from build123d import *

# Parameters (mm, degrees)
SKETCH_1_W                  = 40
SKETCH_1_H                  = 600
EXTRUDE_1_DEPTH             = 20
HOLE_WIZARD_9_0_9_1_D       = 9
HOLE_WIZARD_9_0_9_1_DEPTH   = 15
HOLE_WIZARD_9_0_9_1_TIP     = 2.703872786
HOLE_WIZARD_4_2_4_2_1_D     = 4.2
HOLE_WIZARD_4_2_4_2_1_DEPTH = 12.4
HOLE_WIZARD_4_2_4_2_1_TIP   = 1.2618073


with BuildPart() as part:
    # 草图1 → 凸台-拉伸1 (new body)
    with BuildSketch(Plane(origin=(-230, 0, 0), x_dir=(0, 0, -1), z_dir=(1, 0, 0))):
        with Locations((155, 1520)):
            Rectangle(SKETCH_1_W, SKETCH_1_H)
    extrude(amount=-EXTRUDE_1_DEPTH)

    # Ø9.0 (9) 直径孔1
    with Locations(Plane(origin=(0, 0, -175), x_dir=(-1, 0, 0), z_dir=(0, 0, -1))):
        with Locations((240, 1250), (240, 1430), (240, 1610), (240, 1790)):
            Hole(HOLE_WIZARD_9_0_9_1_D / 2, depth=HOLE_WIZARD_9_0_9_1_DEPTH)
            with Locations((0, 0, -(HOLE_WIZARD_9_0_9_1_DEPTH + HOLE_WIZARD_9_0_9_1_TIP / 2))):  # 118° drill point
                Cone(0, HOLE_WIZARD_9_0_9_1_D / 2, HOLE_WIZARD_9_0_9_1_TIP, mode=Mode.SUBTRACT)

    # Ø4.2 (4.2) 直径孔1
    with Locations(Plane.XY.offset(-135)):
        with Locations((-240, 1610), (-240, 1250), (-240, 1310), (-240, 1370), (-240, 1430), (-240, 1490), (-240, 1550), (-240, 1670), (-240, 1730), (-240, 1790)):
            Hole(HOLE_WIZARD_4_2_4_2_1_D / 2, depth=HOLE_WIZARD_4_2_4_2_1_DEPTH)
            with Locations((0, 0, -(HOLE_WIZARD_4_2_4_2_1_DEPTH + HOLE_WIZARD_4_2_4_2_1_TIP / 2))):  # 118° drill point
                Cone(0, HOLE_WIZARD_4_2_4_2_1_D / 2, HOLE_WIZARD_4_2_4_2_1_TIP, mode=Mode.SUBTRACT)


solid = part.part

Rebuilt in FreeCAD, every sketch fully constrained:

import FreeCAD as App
import Part
import Sketcher

V = App.Vector
Q = App.Units.Quantity


def add_polygon(sketch, points):
    """Adds a closed chain of lines whose ends are joined by coincident constraints."""
    first, n = sketch.GeometryCount, len(points)
    for a, b in zip(points, points[1:] + points[:1]):
        sketch.addGeometry(Part.LineSegment(App.Vector(*a, 0), App.Vector(*b, 0)), False)
    for i in range(n):
        sketch.addConstraint(Sketcher.Constraint("Coincident", first + i, 2, first + (i + 1) % n, 1))

doc = App.newDocument("Part")
body = doc.addObject("PartDesign::Body", "Body")

# Sketch on YZ plane
sketch1 = body.newObject("Sketcher::SketchObject", "Sketch")
sketch1.AttachmentSupport = (doc.getObject("YZ_Plane"), [""])
sketch1.MapMode = "FlatFace"
sketch1.AttachmentOffset = App.Placement(V(0, 0, -230), App.Rotation())
add_polygon(sketch1, [(1820, -135), (1220, -135), (1220, -175), (1820, -175)])  # lines 0-3
sketch1.addConstraint([
    Sketcher.Constraint("Horizontal", 0),
    Sketcher.Constraint("Vertical", 1),
    Sketcher.Constraint("Horizontal", 2),
    Sketcher.Constraint("Vertical", 3),
    Sketcher.Constraint("DistanceX", 0, 2, 0, 1, Q("600 mm")),
    Sketcher.Constraint("DistanceY", 1, 2, 1, 1, Q("40 mm")),
    Sketcher.Constraint("DistanceX", -1, 1, 0, 2, Q("1220 mm")),
    Sketcher.Constraint("DistanceY", 0, 2, -1, 1, Q("135 mm")),
])
pad1 = body.newObject("PartDesign::Pad", "Pad")
pad1.Profile = sketch1
pad1.Length = 20
pad1.Reversed = True

# Sketch on XY plane
sketch2 = body.newObject("Sketcher::SketchObject", "Sketch001")
sketch2.AttachmentSupport = (doc.getObject("XY_Plane"), [""])
sketch2.MapMode = "FlatFace"
sketch2.AttachmentOffset = App.Placement(V(0, 0, -175), App.Rotation())
sketch2.addGeometry([
    Part.Circle(V(-240, 1250, 0), V(0, 0, 1), 4.5),
    Part.Circle(V(-240, 1430, 0), V(0, 0, 1), 4.5),
    Part.Circle(V(-240, 1610, 0), V(0, 0, 1), 4.5),
    Part.Circle(V(-240, 1790, 0), V(0, 0, 1), 4.5),
], False)
sketch2.addConstraint([
    Sketcher.Constraint("Equal", 0, 1),
    Sketcher.Constraint("Equal", 1, 2),
    Sketcher.Constraint("Equal", 2, 3),
    Sketcher.Constraint("Vertical", 0, 3, 1, 3),
    Sketcher.Constraint("Vertical", 1, 3, 2, 3),
    Sketcher.Constraint("Vertical", 2, 3, 3, 3),
    Sketcher.Constraint("Diameter", 0, Q("9 mm")),
    Sketcher.Constraint("DistanceX", 0, 3, -1, 1, Q("240 mm")),
    Sketcher.Constraint("DistanceY", -1, 1, 0, 3, Q("1250 mm")),
    Sketcher.Constraint("DistanceY", -1, 1, 1, 3, Q("1430 mm")),
    Sketcher.Constraint("DistanceY", -1, 1, 2, 3, Q("1610 mm")),
    Sketcher.Constraint("DistanceY", -1, 1, 3, 3, Q("1790 mm")),
])
doc.recompute()
hole = body.newObject("PartDesign::Hole", "Hole")
hole.Profile = sketch2
hole.ThreadType = "None"
hole.Diameter = 9
hole.DepthType = "Dimension"
hole.Depth = 15
hole.DrillPoint = "Angled"
hole.DrillPointAngle = 118
hole.Reversed = True

# Sketch on XY plane
sketch3 = body.newObject("Sketcher::SketchObject", "Sketch002")
sketch3.AttachmentSupport = (doc.getObject("XY_Plane"), [""])
sketch3.MapMode = "FlatFace"
sketch3.AttachmentOffset = App.Placement(V(0, 0, -135), App.Rotation())
sketch3.addGeometry([
    Part.Circle(V(-240, 1610, 0), V(0, 0, 1), 2.1),  # 0
    Part.Circle(V(-240, 1250, 0), V(0, 0, 1), 2.1),  # 1
    Part.Circle(V(-240, 1310, 0), V(0, 0, 1), 2.1),  # 2
    Part.Circle(V(-240, 1370, 0), V(0, 0, 1), 2.1),  # 3
    Part.Circle(V(-240, 1430, 0), V(0, 0, 1), 2.1),  # 4
    Part.Circle(V(-240, 1490, 0), V(0, 0, 1), 2.1),  # 5
    Part.Circle(V(-240, 1550, 0), V(0, 0, 1), 2.1),  # 6
    Part.Circle(V(-240, 1670, 0), V(0, 0, 1), 2.1),  # 7
    Part.Circle(V(-240, 1730, 0), V(0, 0, 1), 2.1),  # 8
    Part.Circle(V(-240, 1790, 0), V(0, 0, 1), 2.1),  # 9
], False)
sketch3.addConstraint([
    Sketcher.Constraint("Equal", 0, 1),
    Sketcher.Constraint("Equal", 1, 2),
    Sketcher.Constraint("Equal", 2, 3),
    Sketcher.Constraint("Equal", 3, 4),
    Sketcher.Constraint("Equal", 4, 5),
    Sketcher.Constraint("Equal", 5, 6),
    Sketcher.Constraint("Equal", 6, 7),
    Sketcher.Constraint("Equal", 7, 8),
    Sketcher.Constraint("Equal", 8, 9),
    Sketcher.Constraint("Vertical", 0, 3, 1, 3),
    Sketcher.Constraint("Vertical", 1, 3, 2, 3),
    Sketcher.Constraint("Vertical", 2, 3, 3, 3),
    Sketcher.Constraint("Vertical", 3, 3, 4, 3),
    Sketcher.Constraint("Vertical", 4, 3, 5, 3),
    Sketcher.Constraint("Vertical", 5, 3, 6, 3),
    Sketcher.Constraint("Vertical", 6, 3, 7, 3),
    Sketcher.Constraint("Vertical", 7, 3, 8, 3),
    Sketcher.Constraint("Vertical", 8, 3, 9, 3),
    Sketcher.Constraint("Diameter", 0, Q("4.2 mm")),
    Sketcher.Constraint("DistanceX", 0, 3, -1, 1, Q("240 mm")),
    Sketcher.Constraint("DistanceY", -1, 1, 0, 3, Q("1610 mm")),
    Sketcher.Constraint("DistanceY", -1, 1, 1, 3, Q("1250 mm")),
    Sketcher.Constraint("DistanceY", -1, 1, 2, 3, Q("1310 mm")),
    Sketcher.Constraint("DistanceY", -1, 1, 3, 3, Q("1370 mm")),
    Sketcher.Constraint("DistanceY", -1, 1, 4, 3, Q("1430 mm")),
    Sketcher.Constraint("DistanceY", -1, 1, 5, 3, Q("1490 mm")),
    Sketcher.Constraint("DistanceY", -1, 1, 6, 3, Q("1550 mm")),
    Sketcher.Constraint("DistanceY", -1, 1, 7, 3, Q("1670 mm")),
    Sketcher.Constraint("DistanceY", -1, 1, 8, 3, Q("1730 mm")),
    Sketcher.Constraint("DistanceY", -1, 1, 9, 3, Q("1790 mm")),
])
doc.recompute()
hole2 = body.newObject("PartDesign::Hole", "Hole001")
hole2.Profile = sketch3
hole2.ThreadType = "None"
hole2.Diameter = 4.2
hole2.DepthType = "Dimension"
hole2.Depth = 12.4
hole2.DrillPoint = "Angled"
hole2.DrillPointAngle = 118

doc.recompute()
